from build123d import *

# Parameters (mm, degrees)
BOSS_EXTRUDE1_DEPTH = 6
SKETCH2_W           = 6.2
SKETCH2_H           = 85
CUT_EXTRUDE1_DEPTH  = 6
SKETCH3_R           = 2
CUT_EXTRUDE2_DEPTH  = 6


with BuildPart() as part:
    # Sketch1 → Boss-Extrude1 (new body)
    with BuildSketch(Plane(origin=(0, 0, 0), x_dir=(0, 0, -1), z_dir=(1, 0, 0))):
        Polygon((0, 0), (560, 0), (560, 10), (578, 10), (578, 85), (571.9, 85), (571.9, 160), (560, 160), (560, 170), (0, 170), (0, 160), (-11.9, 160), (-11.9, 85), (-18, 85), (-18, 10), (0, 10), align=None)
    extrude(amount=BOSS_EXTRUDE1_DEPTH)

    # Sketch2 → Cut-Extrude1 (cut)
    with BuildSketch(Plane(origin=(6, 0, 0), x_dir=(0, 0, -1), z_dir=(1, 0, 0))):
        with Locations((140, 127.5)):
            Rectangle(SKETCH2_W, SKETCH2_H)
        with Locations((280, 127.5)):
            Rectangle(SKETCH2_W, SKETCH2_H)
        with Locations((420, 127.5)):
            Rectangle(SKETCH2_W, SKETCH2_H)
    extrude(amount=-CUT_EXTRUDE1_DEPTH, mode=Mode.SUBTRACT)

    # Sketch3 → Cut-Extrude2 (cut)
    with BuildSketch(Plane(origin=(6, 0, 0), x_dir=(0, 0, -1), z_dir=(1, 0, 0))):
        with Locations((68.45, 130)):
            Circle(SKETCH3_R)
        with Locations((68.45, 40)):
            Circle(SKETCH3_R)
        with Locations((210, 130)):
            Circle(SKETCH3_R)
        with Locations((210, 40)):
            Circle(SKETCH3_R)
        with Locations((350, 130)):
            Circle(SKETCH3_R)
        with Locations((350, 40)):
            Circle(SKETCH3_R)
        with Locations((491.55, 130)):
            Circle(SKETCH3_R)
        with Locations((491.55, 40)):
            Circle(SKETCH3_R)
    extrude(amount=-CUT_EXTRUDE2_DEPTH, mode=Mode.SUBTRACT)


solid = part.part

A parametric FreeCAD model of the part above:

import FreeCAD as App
import Part
import Sketcher
from FreeCAD import Vector
Q = App.Units.Quantity


def add_polygon(sketch, points):
    """Adds a closed chain of lines whose ends are joined by coincident constraints."""
    first, n = sketch.GeometryCount, len(points)
    for a, b in zip(points, points[1:] + points[:1]):
        sketch.addGeometry(Part.LineSegment(App.Vector(*a, 0), App.Vector(*b, 0)), False)
    for i in range(n):
        sketch.addConstraint(Sketcher.Constraint("Coincident", first + i, 2, first + (i + 1) % n, 1))

doc = App.newDocument("Part")
body = doc.addObject("PartDesign::Body", "Body")

sketch1 = body.newObject("Sketcher::SketchObject", "Sketch")
sketch1.AttachmentSupport = (doc.getObject("YZ_Plane"), [""])
sketch1.MapMode = "FlatFace"
add_polygon(sketch1, [(0, 0), (0, -560), (10, -560), (10, -578), (85, -578), (85, -571.9), (160, -571.9), (160, -560), (170, -560), (170, 0), (160, 0), (160, 11.9), (85, 11.9), (85, 18), (10, 18), (10, 0)])
sketch1.addConstraint([
    Sketcher.Constraint("Vertical", 0),
    Sketcher.Constraint("Horizontal", 1),
    Sketcher.Constraint("Vertical", 2),
    Sketcher.Constraint("Horizontal", 3),
    Sketcher.Constraint("Vertical", 4),
    Sketcher.Constraint("Horizontal", 5),
    Sketcher.Constraint("Vertical", 6),
    Sketcher.Constraint("Horizontal", 7),
    Sketcher.Constraint("Vertical", 8),
    Sketcher.Constraint("Horizontal", 9),
    Sketcher.Constraint("Vertical", 10),
    Sketcher.Constraint("Horizontal", 11),
    Sketcher.Constraint("Vertical", 12),
    Sketcher.Constraint("Horizontal", 13),
    Sketcher.Constraint("Vertical", 14),
    Sketcher.Constraint("Horizontal", 15),
    Sketcher.Constraint("Coincident", 15, 2, -1, 1),
    Sketcher.Constraint("PointOnObject", 8, 2, -1),
    Sketcher.Constraint("Horizontal", 1, 2, 6, 2),
    Sketcher.Constraint("Vertical", 6, 2, 9, 2),
    Sketcher.Constraint("Vertical", 4, 2, 11, 2),
    Sketcher.Constraint("Vertical", 2, 2, 13, 2),
    Sketcher.Constraint("Equal", 3, 5),
    Sketcher.Constraint("Equal", 1, 7),
    Sketcher.Constraint("Equal", 6, 10),
    Sketcher.Constraint("Equal", 4, 12),
    Sketcher.Constraint("DistanceX", 1, 1, 1, 2, Q("10 mm")),
    Sketcher.Constraint("DistanceX", 3, 1, 3, 2, Q("75 mm")),
    Sketcher.Constraint("DistanceY", 0, 2, 0, 1, Q("560 mm")),
    Sketcher.Constraint("DistanceY", 2, 2, 2, 1, Q("18 mm")),
    Sketcher.Constraint("DistanceY", 4, 1, 4, 2, Q("6.1 mm")),
])
pad1 = body.newObject("PartDesign::Pad", "Pad")
pad1.Profile = sketch1
pad1.Length = 6

sketch2 = body.newObject("Sketcher::SketchObject", "Sketch001")
sketch2.AttachmentSupport = (doc.getObject("YZ_Plane"), [""])
sketch2.MapMode = "FlatFace"
sketch2.AttachmentOffset = App.Placement(Vector(0, 0, 6), App.Rotation())
add_polygon(sketch2, [(170, -136.9), (85, -136.9), (85, -143.1), (170, -143.1)])
add_polygon(sketch2, [(170, -276.9), (85, -276.9), (85, -283.1), (170, -283.1)])
add_polygon(sketch2, [(170, -416.9), (85, -416.9), (85, -423.1), (170, -423.1)])
sketch2.addConstraint([
    Sketcher.Constraint("Horizontal", 0),
    Sketcher.Constraint("Vertical", 1),
    Sketcher.Constraint("Horizontal", 2),
    Sketcher.Constraint("Vertical", 3),
    Sketcher.Constraint("Horizontal", 4),
    Sketcher.Constraint("Vertical", 5),
    Sketcher.Constraint("Horizontal", 6),
    Sketcher.Constraint("Vertical", 7),
    Sketcher.Constraint("Horizontal", 8),
    Sketcher.Constraint("Vertical", 9),
    Sketcher.Constraint("Horizontal", 10),
    Sketcher.Constraint("Vertical", 11),
    Sketcher.Constraint("Vertical", 1, 2, 4, 2),
    Sketcher.Constraint("Vertical", 3, 2, 6, 2),
    Sketcher.Constraint("Vertical", 5, 2, 8, 2),
    Sketcher.Constraint("Vertical", 7, 2, 10, 2),
    Sketcher.Constraint("Equal", 3, 5),
    Sketcher.Constraint("Equal", 7, 9),
    Sketcher.Constraint("DistanceX", 0, 2, 0, 1, Q("85 mm")),
    Sketcher.Constraint("DistanceY", 1, 2, 1, 1, Q("6.2 mm")),
    Sketcher.Constraint("DistanceX", -1, 1, 0, 2, Q("85 mm")),
    Sketcher.Constraint("DistanceY", 4, 2, 0, 2, Q("140 mm")),
    Sketcher.Constraint("DistanceY", 8, 2, 4, 2, Q("140 mm")),
    Sketcher.Constraint("DistanceY", 0, 2, -1, 1, Q("136.9 mm")),
])
pocket1 = body.newObject("PartDesign::Pocket", "Pocket")
pocket1.Profile = sketch2
pocket1.Length = 6

sketch3 = body.newObject("Sketcher::SketchObject", "Sketch002")
sketch3.AttachmentSupport = (doc.getObject("YZ_Plane"), [""])
sketch3.MapMode = "FlatFace"
sketch3.AttachmentOffset = App.Placement(Vector(0, 0, 6), App.Rotation())
sketch3.addGeometry([
    Part.Circle(Vector(130, -68.45, 0), Vector(0, 0, 1), 2),
    Part.Circle(Vector(40, -68.45, 0), Vector(0, 0, 1), 2),
    Part.Circle(Vector(130, -210, 0), Vector(0, 0, 1), 2),
    Part.Circle(Vector(40, -210, 0), Vector(0, 0, 1), 2),
    Part.Circle(Vector(130, -350, 0), Vector(0, 0, 1), 2),
    Part.Circle(Vector(40, -350, 0), Vector(0, 0, 1), 2),
    Part.Circle(Vector(130, -491.55, 0), Vector(0, 0, 1), 2),
    Part.Circle(Vector(40, -491.55, 0), Vector(0, 0, 1), 2),
], False)
sketch3.addConstraint([
    Sketcher.Constraint("Equal", 0, 1),
    Sketcher.Constraint("Equal", 1, 2),
    Sketcher.Constraint("Equal", 2, 3),
    Sketcher.Constraint("Equal", 3, 4),
    Sketcher.Constraint("Equal", 4, 5),
    Sketcher.Constraint("Equal", 5, 6),
    Sketcher.Constraint("Equal", 6, 7),
    Sketcher.Constraint("Horizontal", 0, 3, 1, 3),
    Sketcher.Constraint("Horizontal", 2, 3, 3, 3),
    Sketcher.Constraint("Horizontal", 4, 3, 5, 3),
    Sketcher.Constraint("Horizontal", 6, 3, 7, 3),
    Sketcher.Constraint("Vertical", 0, 3, 2, 3),
    Sketcher.Constraint("Vertical", 1, 3, 3, 3),
    Sketcher.Constraint("Vertical", 2, 3, 4, 3),
    Sketcher.Constraint("Vertical", 3, 3, 5, 3),
    Sketcher.Constraint("Vertical", 4, 3, 6, 3),
    Sketcher.Constraint("Vertical", 5, 3, 7, 3),
    Sketcher.Constraint("Diameter", 0, Q("4 mm")),
    Sketcher.Constraint("DistanceX", -1, 1, 0, 3, Q("130 mm")),
    Sketcher.Constraint("DistanceX", -1, 1, 1, 3, Q("40 mm")),
    Sketcher.Constraint("DistanceY", 2, 3, -1, 1, Q("210 mm")),
    Sketcher.Constraint("DistanceY", 4, 3, -1, 1, Q("350 mm")),
    Sketcher.Constraint("DistanceY", 6, 3, 0, 3, Q("423.1 mm")),
    Sketcher.Constraint("DistanceY", 0, 3, -1, 1, Q("68.45 mm")),
])
pocket2 = body.newObject("PartDesign::Pocket", "Pocket001")
pocket2.Profile = sketch3
pocket2.Length = 6

doc.recompute()
